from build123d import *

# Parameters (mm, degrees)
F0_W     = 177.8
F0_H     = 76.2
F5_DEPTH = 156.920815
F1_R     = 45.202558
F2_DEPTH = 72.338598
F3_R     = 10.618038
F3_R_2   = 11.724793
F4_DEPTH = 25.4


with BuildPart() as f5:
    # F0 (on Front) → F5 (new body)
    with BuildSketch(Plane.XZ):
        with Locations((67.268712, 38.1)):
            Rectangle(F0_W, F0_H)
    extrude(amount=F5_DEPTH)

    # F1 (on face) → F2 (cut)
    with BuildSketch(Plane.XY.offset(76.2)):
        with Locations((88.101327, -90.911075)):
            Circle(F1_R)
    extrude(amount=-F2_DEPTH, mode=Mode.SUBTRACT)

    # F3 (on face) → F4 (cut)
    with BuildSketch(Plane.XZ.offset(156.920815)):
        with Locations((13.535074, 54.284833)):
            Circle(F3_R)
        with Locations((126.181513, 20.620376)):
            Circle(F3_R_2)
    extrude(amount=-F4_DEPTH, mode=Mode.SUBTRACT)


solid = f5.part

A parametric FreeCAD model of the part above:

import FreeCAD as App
import Part
import Sketcher
Q = App.Units.Quantity

doc = App.newDocument("Part")
body = doc.addObject("PartDesign::Body", "Body")

# Sketch on XZ plane
sketch1 = body.newObject("Sketcher::SketchObject", "Sketch")
sketch1.AttachmentSupport = (doc.getObject("XZ_Plane"), [""])
sketch1.MapMode = "FlatFace"
sketch1.addGeometry([
    Part.LineSegment(App.Vector(-22, 76, 0), App.Vector(-22, 0, 0)),
    Part.LineSegment(App.Vector(-22, 0, 0), App.Vector(156, 0, 0)),
    Part.LineSegment(App.Vector(156, 0, 0), App.Vector(156, 76, 0)),
    Part.LineSegment(App.Vector(156, 76, 0), App.Vector(-22, 76, 0)),
], False)
sketch1.addConstraint([
    Sketcher.Constraint("Coincident", 0, 2, 1, 1),
    Sketcher.Constraint("Coincident", 1, 2, 2, 1),
    Sketcher.Constraint("Coincident", 2, 2, 3, 1),
    Sketcher.Constraint("Coincident", 3, 2, 0, 1),
    Sketcher.Constraint("Vertical", 0),
    Sketcher.Constraint("Horizontal", 1),
    Sketcher.Constraint("Vertical", 2),
    Sketcher.Constraint("Horizontal", 3),
    Sketcher.Constraint("PointOnObject", 0, 2, -1),
    Sketcher.Constraint("DistanceX", 1, 1, 1, 2, Q("7 in")),
    Sketcher.Constraint("DistanceY", 0, 2, 0, 1, Q("3 in")),
    Sketcher.Constraint("DistanceX", 0, 2, -1, 1, 21.631288),
])
pad1 = body.newObject("PartDesign::Pad", "Pad")
pad1.Profile = sketch1
pad1.Length = 156.920815

# Sketch on XY plane
sketch2 = body.newObject("Sketcher::SketchObject", "Sketch001")
sketch2.AttachmentSupport = (doc.getObject("XY_Plane"), [""])
sketch2.MapMode = "FlatFace"
sketch2.AttachmentOffset = App.Placement(App.Vector(0, 0, 3 * 25.4), App.Rotation())
sketch2.addGeometry(Part.Circle(App.Vector(88, -91, 0), App.Vector(0, 0, 1), 45), False)
sketch2.addConstraint([
    Sketcher.Constraint("Diameter", 0, 90.405116),
    Sketcher.Constraint("DistanceX", -1, 1, 0, 3, 88.101327),
    Sketcher.Constraint("DistanceY", 0, 3, -1, 1, 90.911075),
])
pocket1 = body.newObject("PartDesign::Pocket", "Pocket")
pocket1.Profile = sketch2
pocket1.Length = 72.338598

# Sketch on XZ plane
sketch3 = body.newObject("Sketcher::SketchObject", "Sketch002")
sketch3.AttachmentSupport = (doc.getObject("XZ_Plane"), [""])
sketch3.MapMode = "FlatFace"
sketch3.AttachmentOffset = App.Placement(App.Vector(0, 0, 156.920815), App.Rotation())
sketch3.addGeometry([
    Part.Circle(App.Vector(14, 54, 0), App.Vector(0, 0, 1), 11),
    Part.Circle(App.Vector(126, 21, 0), App.Vector(0, 0, 1), 12),
], False)
sketch3.addConstraint([
    Sketcher.Constraint("Diameter", 0, 21.236076),
    Sketcher.Constraint("Diameter", 1, 23.449586),
    Sketcher.Constraint("DistanceX", 0, 3, 1, 3, 112.646439),
    Sketcher.Constraint("DistanceX", -1, 1, 0, 3, 13.535074),
    Sketcher.Constraint("DistanceY", -1, 1, 0, 3, 54.284833),
    Sketcher.Constraint("DistanceY", -1, 1, 1, 3, 20.620376),
])
pocket2 = body.newObject("PartDesign::Pocket", "Pocket001")
pocket2.Profile = sketch3
pocket2.Length = Q("1 in")

doc.recompute()
